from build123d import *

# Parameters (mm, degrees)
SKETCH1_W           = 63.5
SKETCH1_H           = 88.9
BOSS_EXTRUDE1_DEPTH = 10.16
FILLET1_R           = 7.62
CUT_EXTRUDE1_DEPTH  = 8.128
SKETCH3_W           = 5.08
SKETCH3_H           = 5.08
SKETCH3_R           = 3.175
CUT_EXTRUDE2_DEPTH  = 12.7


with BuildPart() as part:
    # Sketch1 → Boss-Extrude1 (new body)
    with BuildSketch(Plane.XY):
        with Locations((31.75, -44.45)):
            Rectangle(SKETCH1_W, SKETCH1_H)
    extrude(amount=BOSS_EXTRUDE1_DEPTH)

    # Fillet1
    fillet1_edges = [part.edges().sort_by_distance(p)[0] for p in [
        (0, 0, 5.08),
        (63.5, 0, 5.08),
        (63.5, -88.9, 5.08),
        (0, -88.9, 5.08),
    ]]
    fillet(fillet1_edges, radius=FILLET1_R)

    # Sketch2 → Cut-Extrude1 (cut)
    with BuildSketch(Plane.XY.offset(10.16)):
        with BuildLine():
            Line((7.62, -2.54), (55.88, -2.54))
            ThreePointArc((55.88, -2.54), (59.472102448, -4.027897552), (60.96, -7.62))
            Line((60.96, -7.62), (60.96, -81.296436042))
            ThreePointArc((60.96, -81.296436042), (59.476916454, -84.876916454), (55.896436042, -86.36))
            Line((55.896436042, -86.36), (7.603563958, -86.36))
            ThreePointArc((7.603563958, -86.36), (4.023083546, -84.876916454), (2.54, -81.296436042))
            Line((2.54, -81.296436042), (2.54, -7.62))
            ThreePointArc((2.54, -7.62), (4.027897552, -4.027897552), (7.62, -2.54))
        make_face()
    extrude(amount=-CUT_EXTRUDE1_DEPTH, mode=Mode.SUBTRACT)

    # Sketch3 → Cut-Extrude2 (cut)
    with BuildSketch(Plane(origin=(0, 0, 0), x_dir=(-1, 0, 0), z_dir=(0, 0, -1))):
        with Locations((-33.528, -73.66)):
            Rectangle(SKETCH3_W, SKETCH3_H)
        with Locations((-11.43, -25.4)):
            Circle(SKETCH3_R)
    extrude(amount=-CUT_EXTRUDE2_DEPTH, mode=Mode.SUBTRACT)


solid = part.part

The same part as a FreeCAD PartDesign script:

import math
import FreeCAD as App
import Part
import Sketcher
from FreeCAD import Vector
Q = App.Units.Quantity


def edges_at(feature, points):
    """Names of the edges that pass closest to the given points."""
    edges = feature.Shape.Edges
    near = lambda p: min(range(len(edges)), key=lambda i: edges[i].distToShape(Part.Vertex(*p))[0])
    return sorted({f"Edge{near(p) + 1}" for p in points})


def add_polygon(sketch, points):
    """Adds a closed chain of lines whose ends are joined by coincident constraints."""
    first, n = sketch.GeometryCount, len(points)
    for a, b in zip(points, points[1:] + points[:1]):
        sketch.addGeometry(Part.LineSegment(App.Vector(*a, 0), App.Vector(*b, 0)), False)
    for i in range(n):
        sketch.addConstraint(Sketcher.Constraint("Coincident", first + i, 2, first + (i + 1) % n, 1))

doc = App.newDocument("Part")
body = doc.addObject("PartDesign::Body", "Body")

# Sketch on XY plane
sketch1 = body.newObject("Sketcher::SketchObject", "Sketch")
sketch1.AttachmentSupport = (doc.getObject("XY_Plane"), [""])
sketch1.MapMode = "FlatFace"
add_polygon(sketch1, [(0, 0), (0, -89), (64, -89), (64, 0)])  # lines 0-3
sketch1.addConstraint([
    Sketcher.Constraint("Vertical", 0),
    Sketcher.Constraint("Horizontal", 1),
    Sketcher.Constraint("Vertical", 2),
    Sketcher.Constraint("Horizontal", 3),
    Sketcher.Constraint("Coincident", 3, 2, -1, 1),
    Sketcher.Constraint("DistanceX", 1, 1, 1, 2, Q("2.5 in")),
    Sketcher.Constraint("DistanceY", 0, 2, 0, 1, Q("3.5 in")),
])
pad1 = body.newObject("PartDesign::Pad", "Pad")
pad1.Profile = sketch1
pad1.Length = Q("0.4 in")
doc.recompute()

fillet = body.newObject("PartDesign::Fillet", "Fillet")
fillet.Base = (pad1, edges_at(pad1, [
    (0, 0, 5.08),
    (63.5, 0, 5.08),
    (63.5, -88.9, 5.08),
    (0, -88.9, 5.08),
]))
fillet.Radius = Q("0.3 in")

# Sketch on XY plane
sketch2 = body.newObject("Sketcher::SketchObject", "Sketch001")
sketch2.AttachmentSupport = (doc.getObject("XY_Plane"), [""])
sketch2.MapMode = "FlatFace"
sketch2.AttachmentOffset = App.Placement(Vector(0, 0, 0.4 * 25.4), App.Rotation())
sketch2.addGeometry([
    Part.LineSegment(Vector(56, -3, 0), Vector(8, -3, 0)),  # 0
    Part.ArcOfCircle(Part.Circle(Vector(8, -8, 0), Vector(0, 0, 1), 5), math.radians(90), math.radians(180)),  # 1
    Part.LineSegment(Vector(3, -8, 0), Vector(3, -81, 0)),  # 2
    Part.ArcOfCircle(Part.Circle(Vector(8, -81, 0), Vector(0, 0, 1), 5), math.radians(180), math.radians(270)),  # 3
    Part.LineSegment(Vector(8, -86, 0), Vector(56, -86, 0)),  # 4
    Part.ArcOfCircle(Part.Circle(Vector(56, -81, 0), Vector(0, 0, 1), 5), math.radians(-90), math.radians(0)),  # 5
    Part.LineSegment(Vector(61, -81, 0), Vector(61, -8, 0)),  # 6
    Part.ArcOfCircle(Part.Circle(Vector(56, -8, 0), Vector(0, 0, 1), 5), math.radians(0), math.radians(90)),  # 7
], False)
sketch2.addConstraint([
    Sketcher.Constraint("Tangent", 0, 2, 1, 1),
    Sketcher.Constraint("Tangent", 1, 2, 2, 1),
    Sketcher.Constraint("Tangent", 2, 2, 3, 1),
    Sketcher.Constraint("Tangent", 3, 2, 4, 1),
    Sketcher.Constraint("Tangent", 4, 2, 5, 1),
    Sketcher.Constraint("Tangent", 5, 2, 6, 1),
    Sketcher.Constraint("Tangent", 6, 2, 7, 1),
    Sketcher.Constraint("Tangent", 7, 2, 0, 1),
    Sketcher.Constraint("Horizontal", 0),
    Sketcher.Constraint("Vertical", 2),
    Sketcher.Constraint("Horizontal", 4),
    Sketcher.Constraint("Vertical", 6),
    Sketcher.Constraint("Equal", 3, 5),
    Sketcher.Constraint("Equal", 1, 7),
    Sketcher.Constraint("Radius", 1, Q("0.2 in")),
    Sketcher.Constraint("DistanceX", 0, 2, 0, 1, Q("1.9 in")),
    Sketcher.Constraint("DistanceX", -1, 1, 1, 3, Q("0.3 in")),
    Sketcher.Constraint("DistanceY", 1, 3, -1, 1, Q("0.3 in")),
    Sketcher.Constraint("DistanceY", 3, 2, -1, 1, Q("3.4 in")),
    Sketcher.Constraint("Radius", 3, Q("5.063564 mm")),
])
pocket1 = body.newObject("PartDesign::Pocket", "Pocket")
pocket1.Profile = sketch2
pocket1.Length = Q("0.32 in")

# Sketch on XY plane
sketch3 = body.newObject("Sketcher::SketchObject", "Sketch002")
sketch3.AttachmentSupport = (doc.getObject("XY_Plane"), [""])
sketch3.MapMode = "FlatFace"
add_polygon(sketch3, [(36.1, -71.1), (36.1, -76.2), (31, -76.2), (31, -71.1)])  # lines 0-3
sketch3.addGeometry(Part.Circle(Vector(11.4, -25.4, 0), Vector(0, 0, 1), 3.2), False)  # 4
sketch3.addConstraint([
    Sketcher.Constraint("Vertical", 0),
    Sketcher.Constraint("Horizontal", 1),
    Sketcher.Constraint("Vertical", 2),
    Sketcher.Constraint("Horizontal", 3),
    Sketcher.Constraint("Equal", 3, 0),
    Sketcher.Constraint("Diameter", 4, Q("0.25 in")),
    Sketcher.Constraint("DistanceX", 1, 2, 1, 1, Q("0.2 in")),
    Sketcher.Constraint("DistanceY", 4, 3, -1, 1, Q("1 in")),
    Sketcher.Constraint("DistanceY", 0, 2, -1, 1, Q("3 in")),
    Sketcher.Constraint("DistanceX", -1, 1, 4, 3, Q("0.45 in")),
    Sketcher.Constraint("DistanceX", -1, 1, 0, 2, Q("1.42 in")),
])
pocket2 = body.newObject("PartDesign::Pocket", "Pocket001")
pocket2.Profile = sketch3
pocket2.Length = Q("0.5 in")
pocket2.Reversed = True

doc.recompute()
